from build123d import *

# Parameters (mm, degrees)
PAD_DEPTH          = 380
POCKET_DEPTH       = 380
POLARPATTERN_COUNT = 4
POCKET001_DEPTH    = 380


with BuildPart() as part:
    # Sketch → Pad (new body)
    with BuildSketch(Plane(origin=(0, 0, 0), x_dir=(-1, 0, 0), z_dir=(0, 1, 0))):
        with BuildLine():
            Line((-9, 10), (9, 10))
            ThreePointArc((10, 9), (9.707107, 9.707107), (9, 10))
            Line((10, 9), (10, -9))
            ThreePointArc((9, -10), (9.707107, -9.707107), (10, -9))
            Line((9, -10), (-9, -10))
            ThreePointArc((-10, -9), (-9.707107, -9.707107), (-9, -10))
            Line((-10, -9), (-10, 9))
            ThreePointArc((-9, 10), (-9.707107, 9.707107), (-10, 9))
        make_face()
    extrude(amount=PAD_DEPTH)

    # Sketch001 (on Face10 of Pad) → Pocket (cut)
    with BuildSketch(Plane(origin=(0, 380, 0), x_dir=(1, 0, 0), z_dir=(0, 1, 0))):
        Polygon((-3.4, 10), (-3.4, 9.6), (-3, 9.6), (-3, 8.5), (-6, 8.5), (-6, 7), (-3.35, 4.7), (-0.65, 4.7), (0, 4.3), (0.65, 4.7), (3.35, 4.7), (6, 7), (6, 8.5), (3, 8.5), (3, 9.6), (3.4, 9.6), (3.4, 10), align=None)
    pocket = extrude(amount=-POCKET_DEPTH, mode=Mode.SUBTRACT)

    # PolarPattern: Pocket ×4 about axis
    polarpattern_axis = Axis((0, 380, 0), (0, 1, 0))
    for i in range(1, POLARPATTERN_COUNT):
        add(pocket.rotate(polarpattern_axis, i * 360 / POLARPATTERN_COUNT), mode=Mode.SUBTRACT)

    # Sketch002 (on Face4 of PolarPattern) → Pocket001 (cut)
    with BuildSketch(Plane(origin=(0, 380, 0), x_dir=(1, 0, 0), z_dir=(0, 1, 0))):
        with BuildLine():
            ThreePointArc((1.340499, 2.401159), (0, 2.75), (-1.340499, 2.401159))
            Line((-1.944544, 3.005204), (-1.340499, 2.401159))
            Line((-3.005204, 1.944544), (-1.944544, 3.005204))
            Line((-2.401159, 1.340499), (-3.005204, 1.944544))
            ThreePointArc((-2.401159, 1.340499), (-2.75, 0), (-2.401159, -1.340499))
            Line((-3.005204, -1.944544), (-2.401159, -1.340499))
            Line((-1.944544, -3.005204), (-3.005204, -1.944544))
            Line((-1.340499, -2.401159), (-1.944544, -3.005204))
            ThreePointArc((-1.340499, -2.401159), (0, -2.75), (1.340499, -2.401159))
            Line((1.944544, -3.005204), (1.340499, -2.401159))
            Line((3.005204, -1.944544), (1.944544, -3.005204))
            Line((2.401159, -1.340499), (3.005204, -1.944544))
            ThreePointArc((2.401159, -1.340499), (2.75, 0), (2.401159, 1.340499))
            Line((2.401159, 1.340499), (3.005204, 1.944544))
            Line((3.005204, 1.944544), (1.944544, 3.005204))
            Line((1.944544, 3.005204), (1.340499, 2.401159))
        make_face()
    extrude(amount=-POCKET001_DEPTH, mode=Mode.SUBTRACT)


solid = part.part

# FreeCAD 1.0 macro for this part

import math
import FreeCAD as App
import Part
import Sketcher

V = App.Vector

doc = App.newDocument("Part")
body = doc.addObject("PartDesign::Body", "Body")

# Sketch on XZ plane
sketch1 = body.newObject("Sketcher::SketchObject", "Sketch")
sketch1.AttachmentSupport = (doc.getObject("XZ_Plane"), [""])
sketch1.MapMode = "FlatFace"
sketch1.addGeometry([
    Part.LineSegment(V(-9, 10, 0), V(9, 10, 0)),  # 0
    Part.ArcOfCircle(Part.Circle(V(9, 9, 0), V(0, 0, 1), 1), math.radians(0), math.radians(90)),  # 1
    Part.LineSegment(V(10, 9, 0), V(10, -9, 0)),  # 2
    Part.ArcOfCircle(Part.Circle(V(9, -9, 0), V(0, 0, 1), 1), math.radians(-90), math.radians(0)),  # 3
    Part.LineSegment(V(9, -10, 0), V(-9, -10, 0)),  # 4
    Part.ArcOfCircle(Part.Circle(V(-9, -9, 0), V(0, 0, 1), 1), math.radians(180), math.radians(270)),  # 5
    Part.LineSegment(V(-10, -9, 0), V(-10, 9, 0)),  # 6
    Part.ArcOfCircle(Part.Circle(V(-9, 9, 0), V(0, 0, 1), 1), math.radians(90), math.radians(180)),  # 7
], False)
sketch1.addConstraint([
    Sketcher.Constraint("Tangent", 0, 2, 1, 2),
    Sketcher.Constraint("Tangent", 1, 1, 2, 1),
    Sketcher.Constraint("Tangent", 2, 2, 3, 2),
    Sketcher.Constraint("Tangent", 3, 1, 4, 1),
    Sketcher.Constraint("Tangent", 4, 2, 5, 2),
    Sketcher.Constraint("Tangent", 5, 1, 6, 1),
    Sketcher.Constraint("Tangent", 6, 2, 7, 2),
    Sketcher.Constraint("Tangent", 7, 1, 0, 1),
    Sketcher.Constraint("Horizontal", 0),
    Sketcher.Constraint("Vertical", 2),
    Sketcher.Constraint("Horizontal", 4),
    Sketcher.Constraint("Vertical", 6),
    Sketcher.Constraint("Equal", 1, 3),
    Sketcher.Constraint("Equal", 3, 5),
    Sketcher.Constraint("Equal", 5, 7),
    Sketcher.Constraint("Symmetric", 1, 3, 5, 3, -1, 1),
    Sketcher.Constraint("Equal", 4, 2),
    Sketcher.Constraint("Radius", 1, 0.999999),
    Sketcher.Constraint("DistanceX", 0, 1, 0, 2, 18.0),
])
pad1 = body.newObject("PartDesign::Pad", "Pad")
pad1.Profile = sketch1
pad1.Length = 380
pad1.Reversed = True

# Sketch on XZ plane
sketch2 = body.newObject("Sketcher::SketchObject", "Sketch001")
sketch2.AttachmentSupport = (doc.getObject("XZ_Plane"), [""])
sketch2.MapMode = "FlatFace"
sketch2.AttachmentOffset = App.Placement(V(0, 0, -380), App.Rotation())
sketch2.addGeometry([
    Part.LineSegment(V(-3.4, -10, 0), V(-3.4, -9.6, 0)),  # 0
    Part.LineSegment(V(-3.4, -9.6, 0), V(-3, -9.6, 0)),  # 1
    Part.LineSegment(V(-3, -9.6, 0), V(-3, -8.5, 0)),  # 2
    Part.LineSegment(V(-3, -8.5, 0), V(-6, -8.5, 0)),  # 3
    Part.LineSegment(V(-6, -8.5, 0), V(-6, -7, 0)),  # 4
    Part.LineSegment(V(-6, -7, 0), V(-3.35, -4.7, 0)),  # 5
    Part.LineSegment(V(-3.35, -4.7, 0), V(-0.65, -4.7, 0)),  # 6
    Part.LineSegment(V(-0.65, -4.7, 0), V(0, -4.3, 0)),  # 7
    Part.LineSegment(V(0, -4.3, 0), V(0.65, -4.7, 0)),  # 8
    Part.LineSegment(V(0.65, -4.7, 0), V(3.35, -4.7, 0)),  # 9
    Part.LineSegment(V(3.35, -4.7, 0), V(6, -7, 0)),  # 10
    Part.LineSegment(V(6, -7, 0), V(6, -8.5, 0)),  # 11
    Part.LineSegment(V(6, -8.5, 0), V(3, -8.5, 0)),  # 12
    Part.LineSegment(V(3, -8.5, 0), V(3, -9.6, 0)),  # 13
    Part.LineSegment(V(3, -9.6, 0), V(3.4, -9.6, 0)),  # 14
    Part.LineSegment(V(3.4, -9.6, 0), V(3.4, -10, 0)),  # 15
    Part.LineSegment(V(3.4, -10, 0), V(-3.4, -10, 0)),  # 16
], False)
sketch2.addConstraint([
    Sketcher.Constraint("Coincident", 0, 2, 1, 1),
    Sketcher.Constraint("Coincident", 1, 2, 2, 1),
    Sketcher.Constraint("Coincident", 2, 2, 3, 1),
    Sketcher.Constraint("Coincident", 3, 2, 4, 1),
    Sketcher.Constraint("Coincident", 4, 2, 5, 1),
    Sketcher.Constraint("Coincident", 5, 2, 6, 1),
    Sketcher.Constraint("Coincident", 6, 2, 7, 1),
    Sketcher.Constraint("Coincident", 7, 2, 8, 1),
    Sketcher.Constraint("Coincident", 8, 2, 9, 1),
    Sketcher.Constraint("Coincident", 9, 2, 10, 1),
    Sketcher.Constraint("Coincident", 10, 2, 11, 1),
    Sketcher.Constraint("Coincident", 11, 2, 12, 1),
    Sketcher.Constraint("Coincident", 12, 2, 13, 1),
    Sketcher.Constraint("Coincident", 13, 2, 14, 1),
    Sketcher.Constraint("Coincident", 14, 2, 15, 1),
    Sketcher.Constraint("Coincident", 15, 2, 16, 1),
    Sketcher.Constraint("Coincident", 16, 2, 0, 1),
    Sketcher.Constraint("Vertical", 0),
    Sketcher.Constraint("Horizontal", 1),
    Sketcher.Constraint("Vertical", 2),
    Sketcher.Constraint("Horizontal", 3),
    Sketcher.Constraint("Vertical", 4),
    Sketcher.Constraint("Horizontal", 6),
    Sketcher.Constraint("Horizontal", 9),
    Sketcher.Constraint("Vertical", 11),
    Sketcher.Constraint("Horizontal", 12),
    Sketcher.Constraint("Vertical", 13),
    Sketcher.Constraint("Horizontal", 14),
    Sketcher.Constraint("Vertical", 15),
    Sketcher.Constraint("Horizontal", 16),
    Sketcher.Constraint("Symmetric", 6, 2, 8, 2, -2),
    Sketcher.Constraint("Symmetric", 4, 2, 10, 2, -2),
    Sketcher.Constraint("Symmetric", 2, 2, 12, 2, -2),
    Sketcher.Constraint("Symmetric", 0, 2, 14, 2, -2),
    Sketcher.Constraint("PointOnObject", 7, 2, -2),
    Sketcher.Constraint("Equal", 6, 9),
    Sketcher.Constraint("Equal", 14, 0),
    Sketcher.Constraint("DistanceX", 3, 2, 3, 1, 3.0),
    Sketcher.Constraint("DistanceX", 1, 1, 1, 2, 0.4),
    Sketcher.Constraint("DistanceX", 6, 1, 6, 2, 2.7),
    Sketcher.Constraint("DistanceX", 16, 2, 16, 1, 6.8),
    Sketcher.Constraint("DistanceY", 2, 1, 2, 2, 1.1),
    Sketcher.Constraint("DistanceY", 4, 1, 4, 2, 1.5),
    Sketcher.Constraint("DistanceY", 4, 2, -1, 1, 7.0),
    Sketcher.Constraint("DistanceX", 5, 2, 8, 2, 4.0),
    Sketcher.Constraint("DistanceY", 5, 2, -1, 1, 4.7),
    Sketcher.Constraint("DistanceY", 7, 2, -1, 1, 4.3),
])
pocket1 = body.newObject("PartDesign::Pocket", "Pocket")
pocket1.Profile = sketch2
pocket1.Length = 380
pocket1.Reversed = True
doc.recompute()

polarpattern = body.newObject("PartDesign::PolarPattern", "PolarPattern")
polarpattern.Originals = [pocket1]
polarpattern.Axis = (doc.getObject("Y_Axis"), [""])
polarpattern.Angle = 360
polarpattern.Occurrences = 4
body.Tip = polarpattern

# Sketch on XZ plane
sketch3 = body.newObject("Sketcher::SketchObject", "Sketch002")
sketch3.AttachmentSupport = (doc.getObject("XZ_Plane"), [""])
sketch3.MapMode = "FlatFace"
sketch3.AttachmentOffset = App.Placement(V(0, 0, -380), App.Rotation())
sketch3.addGeometry([
    Part.ArcOfCircle(Part.Circle(V(0, 0, 0), V(0, 0, 1), 2.8), math.radians(-119), math.radians(-61)),  # 0
    Part.LineSegment(V(-1.3, -2.4, 0), V(-1.9, -3, 0)),  # 1
    Part.LineSegment(V(-1.9, -3, 0), V(-3, -1.9, 0)),  # 2
    Part.LineSegment(V(-3, -1.9, 0), V(-2.4, -1.3, 0)),  # 3
    Part.ArcOfCircle(Part.Circle(V(0, 0, 0), V(0, 0, 1), 2.8), math.radians(151), math.radians(209)),  # 4
    Part.LineSegment(V(-2.4, 1.3, 0), V(-3, 1.9, 0)),  # 5
    Part.LineSegment(V(-3, 1.9, 0), V(-1.9, 3, 0)),  # 6
    Part.LineSegment(V(-1.9, 3, 0), V(-1.3, 2.4, 0)),  # 7
    Part.ArcOfCircle(Part.Circle(V(0, 0, 0), V(0, 0, 1), 2.8), math.radians(61), math.radians(119)),  # 8
    Part.LineSegment(V(1.3, 2.4, 0), V(1.9, 3, 0)),  # 9
    Part.LineSegment(V(1.9, 3, 0), V(3, 1.9, 0)),  # 10
    Part.LineSegment(V(3, 1.9, 0), V(2.4, 1.3, 0)),  # 11
    Part.ArcOfCircle(Part.Circle(V(0, 0, 0), V(0, 0, 1), 2.8), math.radians(-29), math.radians(29)),  # 12
    Part.LineSegment(V(2.4, -1.3, 0), V(3, -1.9, 0)),  # 13
    Part.LineSegment(V(3, -1.9, 0), V(1.9, -3, 0)),  # 14
    Part.LineSegment(V(1.9, -3, 0), V(1.3, -2.4, 0)),  # 15
], False)
sketch3.addConstraint([
    Sketcher.Constraint("Coincident", 0, 1, 1, 1),
    Sketcher.Constraint("Coincident", 1, 2, 2, 1),
    Sketcher.Constraint("Coincident", 2, 2, 3, 1),
    Sketcher.Constraint("Coincident", 3, 2, 4, 2),
    Sketcher.Constraint("Coincident", 4, 1, 5, 1),
    Sketcher.Constraint("Coincident", 5, 2, 6, 1),
    Sketcher.Constraint("Coincident", 6, 2, 7, 1),
    Sketcher.Constraint("Coincident", 7, 2, 8, 2),
    Sketcher.Constraint("Coincident", 8, 1, 9, 1),
    Sketcher.Constraint("Coincident", 9, 2, 10, 1),
    Sketcher.Constraint("Coincident", 10, 2, 11, 1),
    Sketcher.Constraint("Coincident", 11, 2, 12, 2),
    Sketcher.Constraint("Coincident", 12, 1, 13, 1),
    Sketcher.Constraint("Coincident", 13, 2, 14, 1),
    Sketcher.Constraint("Coincident", 14, 2, 15, 1),
    Sketcher.Constraint("Coincident", 15, 2, 0, 2),
    Sketcher.Constraint("Coincident", 0, 3, -1, 1),
    Sketcher.Constraint("Coincident", 4, 3, -1, 1),
    Sketcher.Constraint("Coincident", 8, 3, -1, 1),
    Sketcher.Constraint("Coincident", 12, 3, -1, 1),
    Sketcher.Constraint("Equal", 0, 4),
    Sketcher.Constraint("Equal", 4, 8),
    Sketcher.Constraint("Equal", 8, 12),
    Sketcher.Constraint("Symmetric", 1, 2, 9, 2, -1, 1),
    Sketcher.Constraint("Symmetric", 2, 2, 10, 2, -1, 1),
    Sketcher.Constraint("Symmetric", 5, 2, 13, 2, -1, 1),
    Sketcher.Constraint("Symmetric", 6, 2, 14, 2, -1, 1),
    Sketcher.Constraint("Symmetric", 6, 2, 9, 2, -2),
    Sketcher.Constraint("Symmetric", 5, 2, 10, 2, -2),
    Sketcher.Constraint("Perpendicular", 1, 2),
    Sketcher.Constraint("Perpendicular", 2, 3),
    Sketcher.Constraint("Perpendicular", 3, 5),
    Sketcher.Constraint("Perpendicular", 5, 6),
    Sketcher.Constraint("Perpendicular", 6, 7),
    Sketcher.Constraint("Perpendicular", 7, 9),
    Sketcher.Constraint("Perpendicular", 10, 11),
    Sketcher.Constraint("Perpendicular", 11, 13),
    Sketcher.Constraint("Perpendicular", 14, 15),
    Sketcher.Constraint("Equal", 1, 3),
    Sketcher.Constraint("Distance", 2, 1.5),
    Sketcher.Constraint("Radius", 0, 2.750003),
    Sketcher.Constraint("DistanceY", 1, 2, 8, 3, 3.005201),
])
pocket2 = body.newObject("PartDesign::Pocket", "Pocket001")
pocket2.Profile = sketch3
pocket2.Length = 380
pocket2.Reversed = True

doc.recompute()
